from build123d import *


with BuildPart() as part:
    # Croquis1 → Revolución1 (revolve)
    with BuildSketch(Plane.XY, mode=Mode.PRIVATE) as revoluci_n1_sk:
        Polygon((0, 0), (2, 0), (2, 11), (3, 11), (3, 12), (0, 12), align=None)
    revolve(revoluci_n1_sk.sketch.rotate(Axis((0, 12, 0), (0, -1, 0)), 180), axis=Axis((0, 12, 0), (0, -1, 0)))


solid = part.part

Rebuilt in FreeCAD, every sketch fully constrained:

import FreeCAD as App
import Part
import Sketcher

V = App.Vector

doc = App.newDocument("Part")
params = doc.addObject("Spreadsheet::Sheet", "Params")
for row, (alias, value) in enumerate([
    ("sketch1_width", "2 mm"),
    ("sketch1_width2", "1 mm"),
    ("sketch1_height", "11 mm"),
    ("revolution_angle", "360 deg"),
], start=1):
    params.set(f"A{row}", alias)
    params.set(f"B{row}", "=" + value)
    params.setAlias(f"B{row}", alias)

body = doc.addObject("PartDesign::Body", "Body")

# Sketch on XY plane
sketch1 = body.newObject("Sketcher::SketchObject", "Sketch")
sketch1.AttachmentSupport = (doc.getObject("XY_Plane"), [""])
sketch1.MapMode = "FlatFace"
sketch1.addGeometry(Part.LineSegment(V(0, 0, 0), V(2, 0, 0)), False)
sketch1.addGeometry(Part.LineSegment(V(2, 0, 0), V(2, 11, 0)), False)
sketch1.addGeometry(Part.LineSegment(V(2, 11, 0), V(3, 11, 0)), False)
sketch1.addGeometry(Part.LineSegment(V(3, 11, 0), V(3, 12, 0)), False)
sketch1.addGeometry(Part.LineSegment(V(3, 12, 0), V(0, 12, 0)), False)
sketch1.addGeometry(Part.LineSegment(V(0, 12, 0), V(0, 0, 0)), False)
sketch1.addConstraint(Sketcher.Constraint("Coincident", 0, 2, 1, 1))
sketch1.addConstraint(Sketcher.Constraint("Coincident", 1, 2, 2, 1))
sketch1.addConstraint(Sketcher.Constraint("Coincident", 2, 2, 3, 1))
sketch1.addConstraint(Sketcher.Constraint("Coincident", 3, 2, 4, 1))
sketch1.addConstraint(Sketcher.Constraint("Coincident", 4, 2, 5, 1))
sketch1.addConstraint(Sketcher.Constraint("Coincident", 5, 2, 0, 1))
sketch1.addConstraint(Sketcher.Constraint("Horizontal", 0))
sketch1.addConstraint(Sketcher.Constraint("Vertical", 1))
sketch1.addConstraint(Sketcher.Constraint("Horizontal", 2))
sketch1.addConstraint(Sketcher.Constraint("Vertical", 3))
sketch1.addConstraint(Sketcher.Constraint("Horizontal", 4))
sketch1.addConstraint(Sketcher.Constraint("Vertical", 5))
sketch1.addConstraint(Sketcher.Constraint("Coincident", 5, 2, -1, 1))
sketch1.addConstraint(Sketcher.Constraint("Equal", 2, 3))
sketch1.addConstraint(Sketcher.Constraint("DistanceX", 0, 1, 0, 2, 2.0))
sketch1.addConstraint(Sketcher.Constraint("DistanceX", 2, 1, 2, 2, 1.0))
sketch1.addConstraint(Sketcher.Constraint("DistanceY", 1, 1, 1, 2, 11.0))
sketch1.setExpression("Constraints[14]", "Params.sketch1_width")
sketch1.setExpression("Constraints[15]", "Params.sketch1_width2")
sketch1.setExpression("Constraints[16]", "Params.sketch1_height")
revolution = body.newObject("PartDesign::Revolution", "Revolution")
revolution.Profile = sketch1
revolution.ReferenceAxis = (sketch1, ["V_Axis"])
revolution.setExpression("Angle", "Params.revolution_angle")

doc.recompute()
